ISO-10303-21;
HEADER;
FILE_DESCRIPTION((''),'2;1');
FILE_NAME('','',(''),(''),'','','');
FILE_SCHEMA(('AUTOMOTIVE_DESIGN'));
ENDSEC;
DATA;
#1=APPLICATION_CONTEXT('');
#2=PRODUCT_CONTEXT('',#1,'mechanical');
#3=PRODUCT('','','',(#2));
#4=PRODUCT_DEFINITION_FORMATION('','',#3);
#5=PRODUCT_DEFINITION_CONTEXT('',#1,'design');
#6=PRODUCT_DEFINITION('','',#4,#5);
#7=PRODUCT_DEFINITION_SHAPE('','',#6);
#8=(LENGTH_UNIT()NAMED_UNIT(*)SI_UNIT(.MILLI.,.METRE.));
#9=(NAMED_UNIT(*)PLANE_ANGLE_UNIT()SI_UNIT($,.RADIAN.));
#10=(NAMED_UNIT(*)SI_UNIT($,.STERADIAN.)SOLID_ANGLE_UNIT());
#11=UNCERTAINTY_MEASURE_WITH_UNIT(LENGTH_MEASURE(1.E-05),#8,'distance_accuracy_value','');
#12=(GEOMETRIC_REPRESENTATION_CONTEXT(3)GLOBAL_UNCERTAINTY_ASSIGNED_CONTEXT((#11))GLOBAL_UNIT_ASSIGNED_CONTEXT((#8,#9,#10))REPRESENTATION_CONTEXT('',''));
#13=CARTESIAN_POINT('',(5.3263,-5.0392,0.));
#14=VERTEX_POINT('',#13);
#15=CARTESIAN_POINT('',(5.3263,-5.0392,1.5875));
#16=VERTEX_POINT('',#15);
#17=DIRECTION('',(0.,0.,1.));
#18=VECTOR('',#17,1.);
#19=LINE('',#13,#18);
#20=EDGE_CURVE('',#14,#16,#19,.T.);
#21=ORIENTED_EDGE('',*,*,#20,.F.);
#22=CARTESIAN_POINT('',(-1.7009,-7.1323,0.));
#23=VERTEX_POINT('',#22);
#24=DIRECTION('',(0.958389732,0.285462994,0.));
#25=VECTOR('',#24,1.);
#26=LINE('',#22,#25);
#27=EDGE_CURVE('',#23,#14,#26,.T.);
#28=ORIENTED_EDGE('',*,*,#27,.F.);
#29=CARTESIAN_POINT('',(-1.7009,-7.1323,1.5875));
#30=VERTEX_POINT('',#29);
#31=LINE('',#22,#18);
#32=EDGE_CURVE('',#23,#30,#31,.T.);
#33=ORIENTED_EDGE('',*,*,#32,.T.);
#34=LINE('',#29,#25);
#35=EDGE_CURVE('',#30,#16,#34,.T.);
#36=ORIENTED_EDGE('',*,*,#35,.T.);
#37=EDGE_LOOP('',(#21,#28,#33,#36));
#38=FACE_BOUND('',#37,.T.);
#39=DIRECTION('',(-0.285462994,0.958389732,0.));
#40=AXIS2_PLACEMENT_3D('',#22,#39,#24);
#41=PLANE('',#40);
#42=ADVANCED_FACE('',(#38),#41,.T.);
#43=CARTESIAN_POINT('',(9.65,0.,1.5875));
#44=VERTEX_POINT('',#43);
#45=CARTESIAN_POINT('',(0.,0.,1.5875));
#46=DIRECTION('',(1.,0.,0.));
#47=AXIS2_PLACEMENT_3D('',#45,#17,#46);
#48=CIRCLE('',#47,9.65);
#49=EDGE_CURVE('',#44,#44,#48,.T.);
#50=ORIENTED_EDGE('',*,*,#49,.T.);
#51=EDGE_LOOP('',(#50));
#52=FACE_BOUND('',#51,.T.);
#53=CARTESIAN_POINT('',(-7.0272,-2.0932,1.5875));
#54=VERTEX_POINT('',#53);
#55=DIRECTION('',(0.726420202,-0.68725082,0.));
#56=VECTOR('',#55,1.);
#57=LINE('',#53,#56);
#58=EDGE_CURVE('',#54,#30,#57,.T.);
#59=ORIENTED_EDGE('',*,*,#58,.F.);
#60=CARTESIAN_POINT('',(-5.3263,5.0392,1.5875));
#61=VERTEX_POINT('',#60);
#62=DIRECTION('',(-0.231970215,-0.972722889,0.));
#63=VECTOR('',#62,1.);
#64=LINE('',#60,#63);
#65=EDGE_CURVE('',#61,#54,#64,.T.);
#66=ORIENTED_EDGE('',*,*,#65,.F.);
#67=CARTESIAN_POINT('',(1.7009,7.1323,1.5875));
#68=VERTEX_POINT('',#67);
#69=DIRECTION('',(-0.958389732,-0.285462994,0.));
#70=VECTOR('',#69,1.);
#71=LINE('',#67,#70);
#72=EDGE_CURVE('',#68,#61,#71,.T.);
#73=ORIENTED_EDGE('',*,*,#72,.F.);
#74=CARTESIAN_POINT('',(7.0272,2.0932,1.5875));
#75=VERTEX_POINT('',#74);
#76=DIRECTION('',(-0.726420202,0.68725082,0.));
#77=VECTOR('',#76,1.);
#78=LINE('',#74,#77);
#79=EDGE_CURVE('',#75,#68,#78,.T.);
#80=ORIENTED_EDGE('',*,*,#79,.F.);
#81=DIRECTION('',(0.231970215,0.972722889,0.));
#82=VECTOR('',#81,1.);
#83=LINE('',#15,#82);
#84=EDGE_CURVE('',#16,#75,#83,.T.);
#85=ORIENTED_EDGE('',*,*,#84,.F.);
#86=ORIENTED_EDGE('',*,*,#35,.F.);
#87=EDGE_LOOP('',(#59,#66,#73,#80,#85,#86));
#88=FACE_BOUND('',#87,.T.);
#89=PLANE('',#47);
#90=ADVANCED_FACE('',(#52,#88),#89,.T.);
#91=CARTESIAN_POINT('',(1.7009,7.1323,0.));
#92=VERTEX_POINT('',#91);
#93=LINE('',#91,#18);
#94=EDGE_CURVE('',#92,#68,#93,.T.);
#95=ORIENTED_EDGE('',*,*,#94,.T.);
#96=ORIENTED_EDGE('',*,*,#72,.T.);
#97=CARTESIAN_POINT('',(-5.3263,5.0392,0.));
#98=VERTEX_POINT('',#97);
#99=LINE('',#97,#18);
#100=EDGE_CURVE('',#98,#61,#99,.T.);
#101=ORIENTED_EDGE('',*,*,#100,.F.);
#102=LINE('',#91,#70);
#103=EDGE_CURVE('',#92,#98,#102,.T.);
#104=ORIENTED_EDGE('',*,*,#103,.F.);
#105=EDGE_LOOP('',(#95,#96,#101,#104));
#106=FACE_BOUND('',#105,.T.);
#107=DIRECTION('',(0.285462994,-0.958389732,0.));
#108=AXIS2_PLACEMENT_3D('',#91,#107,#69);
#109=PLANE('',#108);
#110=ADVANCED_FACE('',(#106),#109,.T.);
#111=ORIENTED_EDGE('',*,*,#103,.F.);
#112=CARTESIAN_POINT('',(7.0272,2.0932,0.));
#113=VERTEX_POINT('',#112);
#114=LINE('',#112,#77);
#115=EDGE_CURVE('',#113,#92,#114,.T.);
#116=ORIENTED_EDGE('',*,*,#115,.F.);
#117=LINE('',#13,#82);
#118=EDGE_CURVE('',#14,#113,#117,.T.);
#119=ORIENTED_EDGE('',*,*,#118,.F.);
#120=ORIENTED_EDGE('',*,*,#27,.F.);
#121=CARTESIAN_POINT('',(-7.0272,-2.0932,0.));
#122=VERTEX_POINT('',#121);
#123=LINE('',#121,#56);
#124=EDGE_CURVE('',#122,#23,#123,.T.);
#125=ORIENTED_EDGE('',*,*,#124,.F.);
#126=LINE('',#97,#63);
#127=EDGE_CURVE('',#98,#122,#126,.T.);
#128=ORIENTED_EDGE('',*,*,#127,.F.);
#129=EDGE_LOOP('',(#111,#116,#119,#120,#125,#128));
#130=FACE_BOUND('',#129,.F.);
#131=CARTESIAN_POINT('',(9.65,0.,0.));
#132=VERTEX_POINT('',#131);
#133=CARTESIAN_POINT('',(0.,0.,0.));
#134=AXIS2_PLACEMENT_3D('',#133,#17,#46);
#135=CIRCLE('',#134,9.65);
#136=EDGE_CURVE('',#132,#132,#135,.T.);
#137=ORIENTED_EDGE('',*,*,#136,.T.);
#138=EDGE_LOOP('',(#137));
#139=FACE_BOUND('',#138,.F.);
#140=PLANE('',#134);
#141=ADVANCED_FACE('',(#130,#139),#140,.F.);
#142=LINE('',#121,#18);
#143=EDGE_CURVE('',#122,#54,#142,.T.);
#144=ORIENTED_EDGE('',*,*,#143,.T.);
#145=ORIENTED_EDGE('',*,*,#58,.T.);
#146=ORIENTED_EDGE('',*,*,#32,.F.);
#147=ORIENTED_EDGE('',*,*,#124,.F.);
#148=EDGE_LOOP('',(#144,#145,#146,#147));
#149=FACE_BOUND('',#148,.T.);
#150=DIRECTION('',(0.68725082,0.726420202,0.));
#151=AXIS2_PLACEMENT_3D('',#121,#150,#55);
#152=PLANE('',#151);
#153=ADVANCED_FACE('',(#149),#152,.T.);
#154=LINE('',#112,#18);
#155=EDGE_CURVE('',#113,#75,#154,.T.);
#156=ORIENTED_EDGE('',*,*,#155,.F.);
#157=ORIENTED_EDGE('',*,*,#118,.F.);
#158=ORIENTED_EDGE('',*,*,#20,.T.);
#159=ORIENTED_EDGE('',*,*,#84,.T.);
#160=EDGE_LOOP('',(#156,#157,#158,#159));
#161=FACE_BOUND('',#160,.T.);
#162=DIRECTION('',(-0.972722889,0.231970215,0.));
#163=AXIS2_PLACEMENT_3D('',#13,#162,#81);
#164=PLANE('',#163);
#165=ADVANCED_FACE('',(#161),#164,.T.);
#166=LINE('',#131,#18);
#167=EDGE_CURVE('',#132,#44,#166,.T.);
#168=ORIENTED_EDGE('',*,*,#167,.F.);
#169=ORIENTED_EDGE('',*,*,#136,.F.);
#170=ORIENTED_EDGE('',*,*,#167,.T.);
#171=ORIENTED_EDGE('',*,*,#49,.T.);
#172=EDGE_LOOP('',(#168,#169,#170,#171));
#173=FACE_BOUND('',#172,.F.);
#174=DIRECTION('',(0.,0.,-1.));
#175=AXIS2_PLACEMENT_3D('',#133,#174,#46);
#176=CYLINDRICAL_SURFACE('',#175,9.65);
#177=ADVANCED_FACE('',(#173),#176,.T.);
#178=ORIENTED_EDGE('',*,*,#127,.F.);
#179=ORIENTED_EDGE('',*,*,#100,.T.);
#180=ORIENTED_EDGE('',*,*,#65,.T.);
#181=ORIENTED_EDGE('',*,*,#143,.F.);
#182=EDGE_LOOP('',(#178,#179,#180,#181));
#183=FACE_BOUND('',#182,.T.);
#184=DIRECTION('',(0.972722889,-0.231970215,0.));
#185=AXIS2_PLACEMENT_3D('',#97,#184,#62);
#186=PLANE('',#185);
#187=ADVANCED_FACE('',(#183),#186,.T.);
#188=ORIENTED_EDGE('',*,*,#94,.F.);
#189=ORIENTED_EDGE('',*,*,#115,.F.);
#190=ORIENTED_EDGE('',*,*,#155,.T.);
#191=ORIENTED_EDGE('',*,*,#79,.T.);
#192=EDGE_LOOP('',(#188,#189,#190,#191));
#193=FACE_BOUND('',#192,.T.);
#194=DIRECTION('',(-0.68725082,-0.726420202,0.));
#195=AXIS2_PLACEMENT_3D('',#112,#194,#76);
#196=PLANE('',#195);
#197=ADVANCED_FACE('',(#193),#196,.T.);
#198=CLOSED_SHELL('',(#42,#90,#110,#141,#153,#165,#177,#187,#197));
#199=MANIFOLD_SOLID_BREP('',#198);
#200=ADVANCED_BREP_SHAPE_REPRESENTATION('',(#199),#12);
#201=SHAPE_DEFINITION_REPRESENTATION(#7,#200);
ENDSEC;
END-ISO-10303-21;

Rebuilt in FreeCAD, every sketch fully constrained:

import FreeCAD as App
import Part
import Sketcher

V = App.Vector

doc = App.newDocument("Part")
body = doc.addObject("PartDesign::Body", "Body")

# Sketch on XY plane
sketch1 = body.newObject("Sketcher::SketchObject", "Sketch")
sketch1.AttachmentSupport = (doc.getObject("XY_Plane"), [""])
sketch1.MapMode = "FlatFace"
sketch1.addGeometry([
    Part.Circle(V(0, 0, 0), V(0, 0, 1), 10),  # 0
    Part.LineSegment(V(-2, -7, 0), V(-7, -2, 0)),  # 1
    Part.LineSegment(V(-7, -2, 0), V(-5, 5, 0)),  # 2
    Part.LineSegment(V(-5, 5, 0), V(2, 7, 0)),  # 3
    Part.LineSegment(V(2, 7, 0), V(7, 2, 0)),  # 4
    Part.LineSegment(V(7, 2, 0), V(5, -5, 0)),  # 5
    Part.LineSegment(V(5, -5, 0), V(-2, -7, 0)),  # 6
], False)
sketch1.addConstraint([
    Sketcher.Constraint("Coincident", 1, 2, 2, 1),
    Sketcher.Constraint("Coincident", 2, 2, 3, 1),
    Sketcher.Constraint("Coincident", 3, 2, 4, 1),
    Sketcher.Constraint("Coincident", 4, 2, 5, 1),
    Sketcher.Constraint("Coincident", 5, 2, 6, 1),
    Sketcher.Constraint("Coincident", 6, 2, 1, 1),
    Sketcher.Constraint("Coincident", 0, 3, -1, 1),
    Sketcher.Constraint("Symmetric", 1, 2, 4, 2, -1, 1),
    Sketcher.Constraint("Symmetric", 2, 2, 5, 2, -1, 1),
    Sketcher.Constraint("Symmetric", 3, 2, 6, 2, -1, 1),
    Sketcher.Constraint("Equal", 1, 2),
    Sketcher.Constraint("Equal", 2, 3),
    Sketcher.Constraint("Diameter", 0, 19.3),
    Sketcher.Constraint("DistanceX", -1, 1, 3, 2, 1.701),
    Sketcher.Constraint("DistanceX", 1, 2, 2, 2, 1.701),
    Sketcher.Constraint("DistanceY", 2, 2, 3, 2, 2.093),
    Sketcher.Constraint("DistanceX", 1, 2, 3, 2, 8.728),
])
pad1 = body.newObject("PartDesign::Pad", "Pad")
pad1.Profile = sketch1
pad1.Length = 1.5875

doc.recompute()
